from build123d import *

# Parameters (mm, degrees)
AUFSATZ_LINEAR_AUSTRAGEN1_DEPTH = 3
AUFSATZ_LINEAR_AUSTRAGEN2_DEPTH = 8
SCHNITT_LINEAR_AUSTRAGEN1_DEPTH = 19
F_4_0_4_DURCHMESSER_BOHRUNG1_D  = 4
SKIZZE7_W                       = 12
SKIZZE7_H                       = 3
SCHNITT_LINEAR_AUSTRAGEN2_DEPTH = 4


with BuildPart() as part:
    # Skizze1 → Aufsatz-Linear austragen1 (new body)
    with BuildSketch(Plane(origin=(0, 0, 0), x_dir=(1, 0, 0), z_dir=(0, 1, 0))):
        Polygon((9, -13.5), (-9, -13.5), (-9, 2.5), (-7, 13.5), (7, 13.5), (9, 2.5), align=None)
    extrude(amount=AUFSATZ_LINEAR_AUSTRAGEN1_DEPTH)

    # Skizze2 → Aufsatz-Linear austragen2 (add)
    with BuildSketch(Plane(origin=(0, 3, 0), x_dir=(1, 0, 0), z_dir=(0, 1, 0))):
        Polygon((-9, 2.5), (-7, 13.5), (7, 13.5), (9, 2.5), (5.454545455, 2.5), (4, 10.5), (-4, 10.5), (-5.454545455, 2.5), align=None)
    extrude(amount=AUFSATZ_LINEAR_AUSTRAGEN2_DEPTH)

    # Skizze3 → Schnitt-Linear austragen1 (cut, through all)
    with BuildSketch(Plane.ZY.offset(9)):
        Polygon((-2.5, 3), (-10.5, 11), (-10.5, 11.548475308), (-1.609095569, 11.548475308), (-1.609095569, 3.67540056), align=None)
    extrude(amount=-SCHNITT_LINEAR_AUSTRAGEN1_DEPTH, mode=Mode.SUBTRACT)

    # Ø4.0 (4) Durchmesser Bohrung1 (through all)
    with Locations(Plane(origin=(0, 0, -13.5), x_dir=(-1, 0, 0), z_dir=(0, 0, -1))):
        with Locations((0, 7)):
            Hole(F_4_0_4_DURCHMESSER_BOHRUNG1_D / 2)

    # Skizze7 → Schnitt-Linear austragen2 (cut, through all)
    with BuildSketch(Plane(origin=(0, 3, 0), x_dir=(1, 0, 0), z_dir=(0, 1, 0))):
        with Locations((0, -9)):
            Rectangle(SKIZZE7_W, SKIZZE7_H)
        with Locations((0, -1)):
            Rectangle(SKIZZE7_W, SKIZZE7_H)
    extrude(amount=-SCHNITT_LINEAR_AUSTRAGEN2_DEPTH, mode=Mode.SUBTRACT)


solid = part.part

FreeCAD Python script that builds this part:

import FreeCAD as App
import Part
import Sketcher
from FreeCAD import Vector
Q = App.Units.Quantity


def add_polygon(sketch, points):
    """Adds a closed chain of lines whose ends are joined by coincident constraints."""
    first, n = sketch.GeometryCount, len(points)
    for a, b in zip(points, points[1:] + points[:1]):
        sketch.addGeometry(Part.LineSegment(App.Vector(*a, 0), App.Vector(*b, 0)), False)
    for i in range(n):
        sketch.addConstraint(Sketcher.Constraint("Coincident", first + i, 2, first + (i + 1) % n, 1))

doc = App.newDocument("Part")
params = doc.addObject("Spreadsheet::Sheet", "Params")
for row, (alias, value) in enumerate([
    ("sketch1_width", "18 mm"),
    ("sketch1_width2", "14 mm"),
    ("sketch1_height", "16 mm"),
    ("pad1_length", "3 mm"),
    ("sketch2_width", "8 mm"),
    ("sketch2_width2", "14 mm"),
    ("pad2_length", "8 mm"),
    ("sketch4_diameter", "4 mm"),
    ("hole_diameter", "4 mm"),
    ("sketch5_width", "12 mm"),
    ("sketch5_height", "3 mm"),
], start=1):
    params.set(f"A{row}", alias)
    params.set(f"B{row}", "=" + value)
    params.setAlias(f"B{row}", alias)

body = doc.addObject("PartDesign::Body", "Body")

sketch1 = body.newObject("Sketcher::SketchObject", "Sketch")
sketch1.AttachmentSupport = (doc.getObject("XZ_Plane"), [""])
sketch1.MapMode = "FlatFace"
add_polygon(sketch1, [(-9, 14), (9, 14), (9, -2), (7, -14), (-7, -14), (-9, -2)])
sketch1.addConstraint([
    Sketcher.Constraint("Horizontal", 0),
    Sketcher.Constraint("Vertical", 1),
    Sketcher.Constraint("Horizontal", 3),
    Sketcher.Constraint("Vertical", 5),
    Sketcher.Constraint("Symmetric", 1, 2, 4, 2, -2),
    Sketcher.Constraint("Equal", 2, 4),
    Sketcher.Constraint("DistanceX", 0, 1, 0, 2, Q("18 mm")),
    Sketcher.Constraint("DistanceX", 3, 2, 3, 1, Q("14 mm")),
    Sketcher.Constraint("DistanceY", 1, 2, 1, 1, Q("16 mm")),
    Sketcher.Constraint("DistanceY", 2, 2, 1, 2, Q("11 mm")),
    Sketcher.Constraint("DistanceY", -1, 1, 0, 2, Q("13.5 mm")),
])
sketch1.setExpression("Constraints[12]", "Params.sketch1_width")
sketch1.setExpression("Constraints[13]", "Params.sketch1_width2")
sketch1.setExpression("Constraints[14]", "Params.sketch1_height")
pad1 = body.newObject("PartDesign::Pad", "Pad")
pad1.Profile = sketch1
pad1.setExpression("Length", "Params.pad1_length")
pad1.Reversed = True

sketch2 = body.newObject("Sketcher::SketchObject", "Sketch001")
sketch2.AttachmentSupport = (doc.getObject("XZ_Plane"), [""])
sketch2.MapMode = "FlatFace"
sketch2.AttachmentOffset = App.Placement(Vector(0, 0, -3), App.Rotation())
add_polygon(sketch2, [(-7, -13.5), (-9, -2.5), (-5.5, -2.5), (-4, -10.5), (4, -10.5), (5.5, -2.5), (9, -2.5), (7, -13.5)])
sketch2.addConstraint([
    Sketcher.Constraint("Horizontal", 1),
    Sketcher.Constraint("Horizontal", 3),
    Sketcher.Constraint("Horizontal", 5),
    Sketcher.Constraint("Horizontal", 7),
    Sketcher.Constraint("Symmetric", 1, 2, 4, 2, -2),
    Sketcher.Constraint("Parallel", 0, 2),
    Sketcher.Constraint("Parallel", 4, 6),
    Sketcher.Constraint("Equal", 1, 5),
    Sketcher.Constraint("Equal", 2, 4),
    Sketcher.Constraint("DistanceX", 3, 1, 3, 2, Q("8 mm")),
    Sketcher.Constraint("DistanceX", 7, 2, 7, 1, Q("14 mm")),
    Sketcher.Constraint("DistanceX", 0, 2, -1, 1, Q("9 mm")),
    Sketcher.Constraint("DistanceY", 2, 2, 1, 2, Q("8 mm")),
    Sketcher.Constraint("DistanceY", 6, 2, 3, 2, Q("3 mm")),
    Sketcher.Constraint("DistanceY", 0, 2, -1, 1, Q("2.5 mm")),
])
sketch2.setExpression("Constraints[17]", "Params.sketch2_width")
sketch2.setExpression("Constraints[18]", "Params.sketch2_width2")
pad2 = body.newObject("PartDesign::Pad", "Pad001")
pad2.Profile = sketch2
pad2.setExpression("Length", "Params.pad2_length")
pad2.Reversed = True

sketch3 = body.newObject("Sketcher::SketchObject", "Sketch002")
sketch3.AttachmentSupport = (doc.getObject("YZ_Plane"), [""])
sketch3.MapMode = "FlatFace"
sketch3.AttachmentOffset = App.Placement(Vector(0, 0, -9), App.Rotation())
add_polygon(sketch3, [(11, -10.5), (3, -2.5), (3.7, -1.6), (11.5, -1.6), (11.5, -10.5)])
sketch3.addConstraint([
    Sketcher.Constraint("Horizontal", 2),
    Sketcher.Constraint("Vertical", 3),
    Sketcher.Constraint("Horizontal", 4),
    Sketcher.Constraint("Angle", 0, Q("135 deg")),
    Sketcher.Constraint("DistanceX", -1, 1, 0, 2, Q("3 mm")),
    Sketcher.Constraint("DistanceX", -1, 1, 4, 2, Q("11 mm")),
    Sketcher.Constraint("DistanceY", 0, 2, -1, 1, Q("2.5 mm")),
    Sketcher.Constraint("DistanceX", -1, 1, 1, 2, Q("3.675401 mm")),
    Sketcher.Constraint("Distance", 1, Q("1.117979 mm")),
    Sketcher.Constraint("DistanceX", 2, 1, 2, 2, Q("7.873075 mm")),
])
pocket1 = body.newObject("PartDesign::Pocket", "Pocket")
pocket1.Profile = sketch3
pocket1.Type = "ThroughAll"
pocket1.Reversed = True

sketch4 = body.newObject("Sketcher::SketchObject", "Sketch003")
sketch4.AttachmentSupport = (doc.getObject("XY_Plane"), [""])
sketch4.MapMode = "FlatFace"
sketch4.AttachmentOffset = App.Placement(Vector(0, 0, -13.5), App.Rotation())
sketch4.addGeometry(Part.Circle(Vector(0, 7, 0), Vector(0, 0, 1), 2), False)
sketch4.addConstraint([
    Sketcher.Constraint("PointOnObject", 0, 3, -2),
    Sketcher.Constraint("Diameter", 0, Q("4 mm")),
    Sketcher.Constraint("DistanceY", -1, 1, 0, 3, Q("7 mm")),
])
sketch4.setExpression("Constraints[1]", "Params.sketch4_diameter")
doc.recompute()
hole = body.newObject("PartDesign::Hole", "Hole")
hole.Profile = sketch4
hole.ThreadType = "None"
hole.setExpression("Diameter", "Params.hole_diameter")
hole.DepthType = "ThroughAll"
hole.Reversed = True

sketch5 = body.newObject("Sketcher::SketchObject", "Sketch004")
sketch5.AttachmentSupport = (doc.getObject("XZ_Plane"), [""])
sketch5.MapMode = "FlatFace"
sketch5.AttachmentOffset = App.Placement(Vector(0, 0, -3), App.Rotation())
add_polygon(sketch5, [(-6, 7.5), (-6, 10.5), (6, 10.5), (6, 7.5)])
add_polygon(sketch5, [(-6, -0.5), (-6, 2.5), (6, 2.5), (6, -0.5)])
sketch5.addConstraint([
    Sketcher.Constraint("Vertical", 0),
    Sketcher.Constraint("Horizontal", 1),
    Sketcher.Constraint("Vertical", 2),
    Sketcher.Constraint("Horizontal", 3),
    Sketcher.Constraint("Vertical", 4),
    Sketcher.Constraint("Horizontal", 5),
    Sketcher.Constraint("Vertical", 6),
    Sketcher.Constraint("Horizontal", 7),
    Sketcher.Constraint("Vertical", 3, 2, 4, 2),
    Sketcher.Constraint("Vertical", 2, 2, 5, 2),
    Sketcher.Constraint("Equal", 2, 4),
    Sketcher.Constraint("DistanceX", 1, 1, 1, 2, Q("12 mm")),
    Sketcher.Constraint("DistanceY", 0, 1, 0, 2, Q("3 mm")),
    Sketcher.Constraint("DistanceX", 0, 2, -1, 1, Q("6 mm")),
    Sketcher.Constraint("DistanceY", 4, 2, 3, 2, Q("5 mm")),
    Sketcher.Constraint("DistanceY", -1, 1, 0, 2, Q("10.5 mm")),
])
sketch5.setExpression("Constraints[19]", "Params.sketch5_width")
sketch5.setExpression("Constraints[20]", "Params.sketch5_height")
pocket2 = body.newObject("PartDesign::Pocket", "Pocket001")
pocket2.Profile = sketch5
pocket2.Type = "ThroughAll"
pocket2.Reversed = True

doc.recompute()
